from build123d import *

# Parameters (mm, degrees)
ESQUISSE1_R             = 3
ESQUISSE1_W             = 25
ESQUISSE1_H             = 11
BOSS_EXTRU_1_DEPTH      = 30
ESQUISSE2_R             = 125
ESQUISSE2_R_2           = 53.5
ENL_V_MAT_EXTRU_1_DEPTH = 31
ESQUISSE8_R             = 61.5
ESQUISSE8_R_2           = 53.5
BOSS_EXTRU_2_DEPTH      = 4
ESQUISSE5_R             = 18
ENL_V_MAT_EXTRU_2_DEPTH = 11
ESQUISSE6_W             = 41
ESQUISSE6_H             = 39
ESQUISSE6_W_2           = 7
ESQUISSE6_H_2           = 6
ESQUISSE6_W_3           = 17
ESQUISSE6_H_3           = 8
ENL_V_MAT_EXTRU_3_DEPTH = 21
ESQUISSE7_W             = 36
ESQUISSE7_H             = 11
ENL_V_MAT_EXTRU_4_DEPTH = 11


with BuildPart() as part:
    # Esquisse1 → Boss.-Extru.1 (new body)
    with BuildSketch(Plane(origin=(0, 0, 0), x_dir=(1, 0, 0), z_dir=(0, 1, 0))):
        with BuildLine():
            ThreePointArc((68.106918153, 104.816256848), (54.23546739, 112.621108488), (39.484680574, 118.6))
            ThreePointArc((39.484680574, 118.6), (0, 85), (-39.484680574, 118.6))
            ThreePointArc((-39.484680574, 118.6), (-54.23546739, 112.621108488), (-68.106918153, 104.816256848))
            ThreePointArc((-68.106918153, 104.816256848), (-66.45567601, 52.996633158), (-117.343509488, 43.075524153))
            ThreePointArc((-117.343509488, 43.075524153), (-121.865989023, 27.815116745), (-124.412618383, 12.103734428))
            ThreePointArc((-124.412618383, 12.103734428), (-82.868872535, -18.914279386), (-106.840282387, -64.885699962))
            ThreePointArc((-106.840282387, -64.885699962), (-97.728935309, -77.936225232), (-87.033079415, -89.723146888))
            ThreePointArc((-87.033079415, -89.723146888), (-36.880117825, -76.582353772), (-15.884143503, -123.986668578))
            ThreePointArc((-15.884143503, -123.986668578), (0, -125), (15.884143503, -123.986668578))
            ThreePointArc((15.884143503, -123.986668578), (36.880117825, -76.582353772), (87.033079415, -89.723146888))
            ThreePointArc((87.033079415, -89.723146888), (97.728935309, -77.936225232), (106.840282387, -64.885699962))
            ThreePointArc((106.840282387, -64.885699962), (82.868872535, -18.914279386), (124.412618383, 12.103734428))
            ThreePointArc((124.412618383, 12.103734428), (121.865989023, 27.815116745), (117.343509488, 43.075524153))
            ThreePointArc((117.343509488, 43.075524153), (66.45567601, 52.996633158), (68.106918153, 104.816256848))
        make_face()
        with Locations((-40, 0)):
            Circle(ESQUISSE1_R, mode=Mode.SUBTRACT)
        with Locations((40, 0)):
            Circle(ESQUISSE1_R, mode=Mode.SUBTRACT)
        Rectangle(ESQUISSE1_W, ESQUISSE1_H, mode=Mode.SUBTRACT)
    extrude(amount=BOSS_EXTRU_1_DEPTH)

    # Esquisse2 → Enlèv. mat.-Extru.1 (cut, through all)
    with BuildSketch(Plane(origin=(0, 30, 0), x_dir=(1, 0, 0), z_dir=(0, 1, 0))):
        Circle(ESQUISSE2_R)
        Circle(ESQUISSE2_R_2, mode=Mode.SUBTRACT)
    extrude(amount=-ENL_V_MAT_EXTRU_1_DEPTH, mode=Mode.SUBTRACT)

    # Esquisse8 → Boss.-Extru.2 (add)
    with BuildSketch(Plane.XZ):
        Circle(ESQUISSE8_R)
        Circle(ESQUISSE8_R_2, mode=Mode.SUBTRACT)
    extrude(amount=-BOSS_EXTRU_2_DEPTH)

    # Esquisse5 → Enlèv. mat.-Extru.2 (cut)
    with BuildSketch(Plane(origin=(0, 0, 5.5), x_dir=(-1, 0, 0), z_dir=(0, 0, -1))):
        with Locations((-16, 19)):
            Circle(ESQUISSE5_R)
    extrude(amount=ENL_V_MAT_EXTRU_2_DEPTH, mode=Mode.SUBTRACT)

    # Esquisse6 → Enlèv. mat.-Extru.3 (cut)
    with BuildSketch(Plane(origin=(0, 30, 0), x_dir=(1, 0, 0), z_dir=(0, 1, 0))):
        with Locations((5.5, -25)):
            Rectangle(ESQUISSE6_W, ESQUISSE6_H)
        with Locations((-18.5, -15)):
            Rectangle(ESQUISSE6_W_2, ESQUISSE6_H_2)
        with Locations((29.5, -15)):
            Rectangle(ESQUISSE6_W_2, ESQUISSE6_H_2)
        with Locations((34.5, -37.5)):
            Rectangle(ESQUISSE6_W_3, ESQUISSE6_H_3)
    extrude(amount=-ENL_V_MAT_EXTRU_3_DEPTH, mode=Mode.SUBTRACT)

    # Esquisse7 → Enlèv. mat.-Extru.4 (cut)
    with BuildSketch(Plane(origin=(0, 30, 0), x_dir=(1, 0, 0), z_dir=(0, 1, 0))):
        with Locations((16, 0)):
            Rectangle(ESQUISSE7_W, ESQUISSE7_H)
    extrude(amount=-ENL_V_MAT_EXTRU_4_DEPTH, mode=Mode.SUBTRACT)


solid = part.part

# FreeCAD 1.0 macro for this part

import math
import FreeCAD as App
import Part
import Sketcher

V = App.Vector
Q = App.Units.Quantity


def add_polygon(sketch, points):
    """Adds a closed chain of lines whose ends are joined by coincident constraints."""
    first, n = sketch.GeometryCount, len(points)
    for a, b in zip(points, points[1:] + points[:1]):
        sketch.addGeometry(Part.LineSegment(App.Vector(*a, 0), App.Vector(*b, 0)), False)
    for i in range(n):
        sketch.addConstraint(Sketcher.Constraint("Coincident", first + i, 2, first + (i + 1) % n, 1))

doc = App.newDocument("Part")
body = doc.addObject("PartDesign::Body", "Body")

# Sketch on XZ plane
sketch1 = doc.addObject("Sketcher::SketchObject", "Sketch")
body.addObject(sketch1)
sketch1.AttachmentSupport = (doc.XZ_Plane, [""])
sketch1.MapMode = "FlatFace"
sketch1.addGeometry(Part.ArcOfCircle(Part.Circle(V(0, 0, 0), V(0, 0, 1), 125), math.radians(-71.59), math.radians(-56.99)), False)  # 0
sketch1.addGeometry(Part.ArcOfCircle(Part.Circle(V(0, -125, 0), V(0, 0, 1), 40), math.radians(9), math.radians(171)), False)  # 1
sketch1.addGeometry(Part.ArcOfCircle(Part.Circle(V(0, 0, 0), V(0, 0, 1), 125), math.radians(-123.01), math.radians(-108.41)), False)  # 2
sketch1.addGeometry(Part.ArcOfCircle(Part.Circle(V(-97.7, -77.9, 0), V(0, 0, 1), 40), math.radians(-42), math.radians(119)), False)  # 3
sketch1.addGeometry(Part.ArcOfCircle(Part.Circle(V(0, 0, 0), V(0, 0, 1), 125), math.radians(-174.44), math.radians(-159.84)), False)  # 4
sketch1.addGeometry(Part.ArcOfCircle(Part.Circle(V(-121.9, 27.8, 0), V(0, 0, 1), 40), math.radians(-94), math.radians(68)), False)  # 5
sketch1.addGeometry(Part.ArcOfCircle(Part.Circle(V(0, 0, 0), V(0, 0, 1), 125), math.radians(134.13), math.radians(148.73)), False)  # 6
sketch1.addGeometry(Part.ArcOfCircle(Part.Circle(V(-54.2, 112.6, 0), V(0, 0, 1), 40), math.radians(-145), math.radians(17)), False)  # 7
sketch1.addGeometry(Part.ArcOfCircle(Part.Circle(V(0, 0, 0), V(0, 0, 1), 125), math.radians(82.7), math.radians(97.3)), False)  # 8
sketch1.addGeometry(Part.ArcOfCircle(Part.Circle(V(54.2, 112.6, 0), V(0, 0, 1), 40), math.radians(163), math.radians(325)), False)  # 9
sketch1.addGeometry(Part.ArcOfCircle(Part.Circle(V(0, 0, 0), V(0, 0, 1), 125), math.radians(31.27), math.radians(45.87)), False)  # 10
sketch1.addGeometry(Part.ArcOfCircle(Part.Circle(V(121.9, 27.8, 0), V(0, 0, 1), 40), math.radians(112), math.radians(274)), False)  # 11
sketch1.addGeometry(Part.ArcOfCircle(Part.Circle(V(0, 0, 0), V(0, 0, 1), 125), math.radians(-20.16), math.radians(-5.56)), False)  # 12
sketch1.addGeometry(Part.ArcOfCircle(Part.Circle(V(97.7, -77.9, 0), V(0, 0, 1), 40), math.radians(61), math.radians(222)), False)  # 13
sketch1.addGeometry(Part.Circle(V(-40, 0, 0), V(0, 0, 1), 3), False)  # 14
add_polygon(sketch1, [(12.5, 5.5), (-12.5, 5.5), (-12.5, -5.5), (12.5, -5.5)])  # lines 15-18
sketch1.addGeometry(Part.Circle(V(40, 0, 0), V(0, 0, 1), 3), False)  # 19
sketch1.addConstraint([
    Sketcher.Constraint("Coincident", 0, 1, 1, 1),
    Sketcher.Constraint("Coincident", 1, 2, 2, 2),
    Sketcher.Constraint("Coincident", 2, 1, 3, 1),
    Sketcher.Constraint("Coincident", 3, 2, 4, 2),
    Sketcher.Constraint("Coincident", 4, 1, 5, 1),
    Sketcher.Constraint("Coincident", 5, 2, 6, 2),
    Sketcher.Constraint("Coincident", 6, 1, 7, 1),
    Sketcher.Constraint("Coincident", 7, 2, 8, 2),
    Sketcher.Constraint("Coincident", 8, 1, 9, 1),
    Sketcher.Constraint("Coincident", 9, 2, 10, 2),
    Sketcher.Constraint("Coincident", 10, 1, 11, 1),
    Sketcher.Constraint("Coincident", 11, 2, 12, 2),
    Sketcher.Constraint("Coincident", 12, 1, 13, 1),
    Sketcher.Constraint("Coincident", 13, 2, 0, 2),
    Sketcher.Constraint("Horizontal", 15),
    Sketcher.Constraint("Vertical", 16),
    Sketcher.Constraint("Horizontal", 17),
    Sketcher.Constraint("Vertical", 18),
    Sketcher.Constraint("Coincident", 0, 3, -1, 1),
    Sketcher.Constraint("Coincident", 2, 3, -1, 1),
    Sketcher.Constraint("Coincident", 4, 3, -1, 1),
    Sketcher.Constraint("Coincident", 6, 3, -1, 1),
    Sketcher.Constraint("Coincident", 8, 3, -1, 1),
    Sketcher.Constraint("Coincident", 10, 3, -1, 1),
    Sketcher.Constraint("Coincident", 12, 3, -1, 1),
    Sketcher.Constraint("Equal", 0, 2),
    Sketcher.Constraint("Equal", 1, 3),
    Sketcher.Constraint("Equal", 2, 4),
    Sketcher.Constraint("Equal", 3, 5),
    Sketcher.Constraint("Equal", 4, 6),
    Sketcher.Constraint("Equal", 5, 7),
    Sketcher.Constraint("Equal", 6, 8),
    Sketcher.Constraint("Equal", 7, 9),
    Sketcher.Constraint("Equal", 8, 10),
    Sketcher.Constraint("Equal", 9, 11),
    Sketcher.Constraint("Equal", 10, 12),
    Sketcher.Constraint("Equal", 11, 13),
    Sketcher.Constraint("Equal", 14, 19),
    Sketcher.Constraint("Symmetric", 14, 3, 19, 3, -1, 1),
    Sketcher.Constraint("Symmetric", 15, 2, 17, 2, -1, 1),
    Sketcher.Constraint("Symmetric", 7, 3, 9, 3, -2),
    Sketcher.Constraint("Symmetric", 5, 3, 11, 3, -2),
    Sketcher.Constraint("Symmetric", 3, 3, 13, 3, -2),
    Sketcher.Constraint("PointOnObject", 1, 3, -2),
    Sketcher.Constraint("PointOnObject", 14, 3, -1),
    Sketcher.Constraint("Diameter", 14, Q("6 mm")),
    Sketcher.Constraint("Radius", 0, Q("125 mm")),
    Sketcher.Constraint("Radius", 1, Q("40 mm")),
    Sketcher.Constraint("DistanceX", 15, 2, 15, 1, Q("25 mm")),
    Sketcher.Constraint("DistanceY", 16, 2, 16, 1, Q("11 mm")),
    Sketcher.Constraint("DistanceY", 1, 3, -1, 1, Q("125 mm")),
    Sketcher.Constraint("DistanceX", 14, 3, -1, 1, Q("40 mm")),
    Sketcher.Constraint("DistanceY", -1, 1, 5, 2, Q("64.8857 mm")),
    Sketcher.Constraint("DistanceX", 2, 1, 0, 1, Q("107.591599 mm")),
    Sketcher.Constraint("DistanceY", 3, 3, 3, 2, Q("34.860701 mm")),
    Sketcher.Constraint("DistanceX", 5, 3, -1, 1, Q("121.865989 mm")),
    Sketcher.Constraint("DistanceY", -1, 1, 7, 3, Q("112.621108 mm")),
    Sketcher.Constraint("DistanceX", 6, 1, -1, 1, Q("87.033079 mm")),
])
pad1 = doc.addObject("PartDesign::Pad", "Pad")
body.addObject(pad1)
pad1.Profile = sketch1
pad1.Length = 30
pad1.Reversed = True

# Sketch on XZ plane
sketch2 = doc.addObject("Sketcher::SketchObject", "Sketch001")
body.addObject(sketch2)
sketch2.AttachmentSupport = (doc.XZ_Plane, [""])
sketch2.MapMode = "FlatFace"
sketch2.AttachmentOffset = App.Placement(V(0, 0, -30), App.Rotation())
sketch2.addGeometry([
    Part.Circle(V(0, 0, 0), V(0, 0, 1), 125),
    Part.Circle(V(0, 0, 0), V(0, 0, 1), 54),
], False)
sketch2.addConstraint([
    Sketcher.Constraint("Coincident", 0, 3, -1, 1),
    Sketcher.Constraint("Coincident", 1, 3, -1, 1),
    Sketcher.Constraint("Diameter", 0, Q("250 mm")),
    Sketcher.Constraint("Diameter", 1, Q("107 mm")),
])
pocket1 = doc.addObject("PartDesign::Pocket", "Pocket")
body.addObject(pocket1)
pocket1.Profile = sketch2
pocket1.Type = "ThroughAll"
pocket1.Reversed = True

# Sketch on XZ plane
sketch3 = doc.addObject("Sketcher::SketchObject", "Sketch002")
body.addObject(sketch3)
sketch3.AttachmentSupport = (doc.XZ_Plane, [""])
sketch3.MapMode = "FlatFace"
sketch3.addGeometry([
    Part.Circle(V(0, 0, 0), V(0, 0, 1), 62),
    Part.Circle(V(0, 0, 0), V(0, 0, 1), 54),
], False)
sketch3.addConstraint([
    Sketcher.Constraint("Coincident", 0, 3, -1, 1),
    Sketcher.Constraint("Coincident", 1, 3, -1, 1),
    Sketcher.Constraint("Diameter", 0, Q("123 mm")),
    Sketcher.Constraint("Diameter", 1, Q("107 mm")),
])
pad2 = doc.addObject("PartDesign::Pad", "Pad001")
body.addObject(pad2)
pad2.Profile = sketch3
pad2.Length = 4
pad2.Reversed = True

# Sketch on XY plane
sketch4 = doc.addObject("Sketcher::SketchObject", "Sketch003")
body.addObject(sketch4)
sketch4.AttachmentSupport = (doc.XY_Plane, [""])
sketch4.MapMode = "FlatFace"
sketch4.AttachmentOffset = App.Placement(V(0, 0, 5.5), App.Rotation())
sketch4.addGeometry(Part.Circle(V(16, 19, 0), V(0, 0, 1), 18), False)
sketch4.addConstraint([
    Sketcher.Constraint("Diameter", 0, Q("36 mm")),
    Sketcher.Constraint("DistanceX", -1, 1, 0, 3, Q("16 mm")),
    Sketcher.Constraint("DistanceY", -1, 1, 0, 3, Q("19 mm")),
])
pocket2 = doc.addObject("PartDesign::Pocket", "Pocket001")
body.addObject(pocket2)
pocket2.Profile = sketch4
pocket2.Length = 11

# Sketch on XZ plane
sketch5 = doc.addObject("Sketcher::SketchObject", "Sketch004")
body.addObject(sketch5)
sketch5.AttachmentSupport = (doc.XZ_Plane, [""])
sketch5.MapMode = "FlatFace"
sketch5.AttachmentOffset = App.Placement(V(0, 0, -30), App.Rotation())
add_polygon(sketch5, [(-15, 18), (-15, 44.5), (26, 44.5), (26, 41.5), (43, 41.5), (43, 33.5), (26, 33.5), (26, 18), (33, 18), (33, 12), (26, 12), (26, 5.5), (-15, 5.5), (-15, 12), (-22, 12), (-22, 18)])  # lines 0-15
sketch5.addConstraint([
    Sketcher.Constraint("Vertical", 0),
    Sketcher.Constraint("Horizontal", 1),
    Sketcher.Constraint("Vertical", 2),
    Sketcher.Constraint("Horizontal", 3),
    Sketcher.Constraint("Vertical", 4),
    Sketcher.Constraint("Horizontal", 5),
    Sketcher.Constraint("Vertical", 6),
    Sketcher.Constraint("Horizontal", 7),
    Sketcher.Constraint("Vertical", 8),
    Sketcher.Constraint("Horizontal", 9),
    Sketcher.Constraint("Vertical", 10),
    Sketcher.Constraint("Horizontal", 11),
    Sketcher.Constraint("Vertical", 12),
    Sketcher.Constraint("Horizontal", 13),
    Sketcher.Constraint("Vertical", 14),
    Sketcher.Constraint("Horizontal", 15),
    Sketcher.Constraint("Horizontal", 9, 2, 12, 2),
    Sketcher.Constraint("Horizontal", 7, 2, 14, 2),
    Sketcher.Constraint("Vertical", 2, 2, 5, 2),
    Sketcher.Constraint("Vertical", 6, 2, 9, 2),
    Sketcher.Constraint("Vertical", 0, 2, 11, 2),
    Sketcher.Constraint("Equal", 9, 13),
    Sketcher.Constraint("DistanceX", 1, 1, 1, 2, Q("41 mm")),
    Sketcher.Constraint("DistanceX", 3, 1, 3, 2, Q("17 mm")),
    Sketcher.Constraint("DistanceX", 7, 1, 7, 2, Q("7 mm")),
    Sketcher.Constraint("DistanceY", 2, 2, 2, 1, Q("3 mm")),
    Sketcher.Constraint("DistanceY", 4, 2, 4, 1, Q("8 mm")),
    Sketcher.Constraint("DistanceY", 8, 2, 8, 1, Q("6 mm")),
    Sketcher.Constraint("DistanceY", 0, 1, 0, 2, Q("26.5 mm")),
    Sketcher.Constraint("DistanceY", 10, 2, 10, 1, Q("6.5 mm")),
    Sketcher.Constraint("DistanceX", 0, 2, -1, 1, Q("15 mm")),
    Sketcher.Constraint("DistanceY", -1, 1, 6, 2, Q("18 mm")),
])
pocket3 = doc.addObject("PartDesign::Pocket", "Pocket002")
body.addObject(pocket3)
pocket3.Profile = sketch5
pocket3.Length = 21
pocket3.Reversed = True

# Sketch on XZ plane
sketch6 = doc.addObject("Sketcher::SketchObject", "Sketch005")
body.addObject(sketch6)
sketch6.AttachmentSupport = (doc.XZ_Plane, [""])
sketch6.MapMode = "FlatFace"
sketch6.AttachmentOffset = App.Placement(V(0, 0, -30), App.Rotation())
add_polygon(sketch6, [(-2, -6), (-2, 6), (34, 6), (34, -6)])  # lines 0-3
sketch6.addConstraint([
    Sketcher.Constraint("Vertical", 0),
    Sketcher.Constraint("Horizontal", 1),
    Sketcher.Constraint("Vertical", 2),
    Sketcher.Constraint("Horizontal", 3),
    Sketcher.Constraint("DistanceX", 1, 1, 1, 2, Q("36 mm")),
    Sketcher.Constraint("DistanceY", 0, 1, 0, 2, Q("11 mm")),
    Sketcher.Constraint("DistanceX", 0, 2, -1, 1, Q("2 mm")),
    Sketcher.Constraint("DistanceY", -1, 1, 0, 2, Q("5.5 mm")),
])
pocket4 = doc.addObject("PartDesign::Pocket", "Pocket003")
body.addObject(pocket4)
pocket4.Profile = sketch6
pocket4.Length = 11
pocket4.Reversed = True

doc.recompute()
